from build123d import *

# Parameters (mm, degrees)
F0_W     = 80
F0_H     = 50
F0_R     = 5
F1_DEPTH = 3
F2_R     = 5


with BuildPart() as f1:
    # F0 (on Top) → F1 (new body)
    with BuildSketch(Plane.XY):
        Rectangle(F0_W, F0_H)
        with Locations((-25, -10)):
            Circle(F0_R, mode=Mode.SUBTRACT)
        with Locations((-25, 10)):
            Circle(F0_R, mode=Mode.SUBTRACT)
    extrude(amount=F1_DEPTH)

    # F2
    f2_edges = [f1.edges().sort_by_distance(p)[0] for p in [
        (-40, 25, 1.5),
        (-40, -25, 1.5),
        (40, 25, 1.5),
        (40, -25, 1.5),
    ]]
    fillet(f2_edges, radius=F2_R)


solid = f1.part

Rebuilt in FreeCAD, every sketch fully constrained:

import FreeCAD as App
import Part
import Sketcher
Q = App.Units.Quantity


def edges_at(feature, points):
    """Names of the edges that pass closest to the given points."""
    edges = feature.Shape.Edges
    near = lambda p: min(range(len(edges)), key=lambda i: edges[i].distToShape(Part.Vertex(*p))[0])
    return sorted({f"Edge{near(p) + 1}" for p in points})

doc = App.newDocument("Part")
body = doc.addObject("PartDesign::Body", "Body")

# Sketch on XY plane
sketch1 = body.newObject("Sketcher::SketchObject", "Sketch")
sketch1.AttachmentSupport = (doc.getObject("XY_Plane"), [""])
sketch1.MapMode = "FlatFace"
sketch1.addGeometry([
    Part.LineSegment(App.Vector(-40, 25, 0), App.Vector(-40, -25, 0)),  # 0
    Part.LineSegment(App.Vector(-40, -25, 0), App.Vector(40, -25, 0)),  # 1
    Part.LineSegment(App.Vector(40, -25, 0), App.Vector(40, 25, 0)),  # 2
    Part.LineSegment(App.Vector(40, 25, 0), App.Vector(-40, 25, 0)),  # 3
    Part.Circle(App.Vector(-25, -10, 0), App.Vector(0, 0, 1), 5),  # 4
    Part.Circle(App.Vector(-25, 10, 0), App.Vector(0, 0, 1), 5),  # 5
], False)
sketch1.addConstraint([
    Sketcher.Constraint("Coincident", 0, 2, 1, 1),
    Sketcher.Constraint("Coincident", 1, 2, 2, 1),
    Sketcher.Constraint("Coincident", 2, 2, 3, 1),
    Sketcher.Constraint("Coincident", 3, 2, 0, 1),
    Sketcher.Constraint("Vertical", 0),
    Sketcher.Constraint("Horizontal", 1),
    Sketcher.Constraint("Vertical", 2),
    Sketcher.Constraint("Horizontal", 3),
    Sketcher.Constraint("Equal", 4, 5),
    Sketcher.Constraint("Symmetric", 0, 2, 2, 2, -1, 1),
    Sketcher.Constraint("Symmetric", 4, 3, 5, 3, -1),
    Sketcher.Constraint("Diameter", 4, Q("10 mm")),
    Sketcher.Constraint("DistanceX", 1, 1, 1, 2, Q("80 mm")),
    Sketcher.Constraint("DistanceY", 0, 2, 0, 1, Q("50 mm")),
    Sketcher.Constraint("DistanceX", 4, 3, -1, 1, Q("25 mm")),
    Sketcher.Constraint("DistanceY", 4, 3, -1, 1, Q("10 mm")),
])
pad1 = body.newObject("PartDesign::Pad", "Pad")
pad1.Profile = sketch1
pad1.Length = 3
doc.recompute()

fillet = body.newObject("PartDesign::Fillet", "Fillet")
fillet.Base = (pad1, edges_at(pad1, [
    (-40, 25, 1.5),
    (-40, -25, 1.5),
    (40, 25, 1.5),
    (40, -25, 1.5),
]))
fillet.Radius = 5

doc.recompute()
